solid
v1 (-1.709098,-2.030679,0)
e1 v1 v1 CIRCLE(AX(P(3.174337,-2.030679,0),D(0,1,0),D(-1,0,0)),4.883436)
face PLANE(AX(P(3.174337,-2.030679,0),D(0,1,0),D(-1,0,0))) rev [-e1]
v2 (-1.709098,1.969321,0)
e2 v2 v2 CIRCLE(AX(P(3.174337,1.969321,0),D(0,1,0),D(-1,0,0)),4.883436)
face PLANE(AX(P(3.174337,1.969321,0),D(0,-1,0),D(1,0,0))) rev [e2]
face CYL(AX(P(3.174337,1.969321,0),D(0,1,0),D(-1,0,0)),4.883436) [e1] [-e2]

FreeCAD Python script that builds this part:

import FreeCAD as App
import Part
import Sketcher
Q = App.Units.Quantity


def add_polygon(sketch, points):
    """Adds a closed chain of lines whose ends are joined by coincident constraints."""
    first, n = sketch.GeometryCount, len(points)
    for a, b in zip(points, points[1:] + points[:1]):
        sketch.addGeometry(Part.LineSegment(App.Vector(*a, 0), App.Vector(*b, 0)), False)
    for i in range(n):
        sketch.addConstraint(Sketcher.Constraint("Coincident", first + i, 2, first + (i + 1) % n, 1))

doc = App.newDocument("Part")
body = doc.addObject("PartDesign::Body", "Body")

sketch1 = doc.addObject("Sketcher::SketchObject", "Sketch")
body.addObject(sketch1)
sketch1.AttachmentSupport = (doc.XY_Plane, [""])
sketch1.MapMode = "FlatFace"
add_polygon(sketch1, [(3.2, 2), (3.2, -2), (8.1, -2), (8.1, 2)])
sketch1.addGeometry(Part.LineSegment(App.Vector(3.2, 2, 0), App.Vector(3.2, -2, 0)), True)
sketch1.addConstraint(Sketcher.Constraint("Vertical", 0))
sketch1.addConstraint(Sketcher.Constraint("Horizontal", 1))
sketch1.addConstraint(Sketcher.Constraint("Vertical", 2))
sketch1.addConstraint(Sketcher.Constraint("Horizontal", 3))
sketch1.addConstraint(Sketcher.Constraint("Vertical", 4))
sketch1.addConstraint(Sketcher.Constraint("Coincident", 4, 1, 3, 2))
sketch1.addConstraint(Sketcher.Constraint("Horizontal", 1, 2, 4, 2))
sketch1.addConstraint(Sketcher.Constraint("DistanceY", 0, 2, 0, 1, Q("4 mm")))
sketch1.addConstraint(Sketcher.Constraint("DistanceX", 1, 1, 1, 2, Q("4.883436 mm")))
sketch1.addConstraint(Sketcher.Constraint("DistanceY", 0, 2, -1, 1, Q("2.030679 mm")))
sketch1.addConstraint(Sketcher.Constraint("DistanceX", -1, 1, 0, 2, Q("3.174337 mm")))
revolution = doc.addObject("PartDesign::Revolution", "Revolution")
body.addObject(revolution)
revolution.Profile = sketch1
revolution.ReferenceAxis = (sketch1, ["Axis0"])
revolution.Angle = 360

doc.recompute()
